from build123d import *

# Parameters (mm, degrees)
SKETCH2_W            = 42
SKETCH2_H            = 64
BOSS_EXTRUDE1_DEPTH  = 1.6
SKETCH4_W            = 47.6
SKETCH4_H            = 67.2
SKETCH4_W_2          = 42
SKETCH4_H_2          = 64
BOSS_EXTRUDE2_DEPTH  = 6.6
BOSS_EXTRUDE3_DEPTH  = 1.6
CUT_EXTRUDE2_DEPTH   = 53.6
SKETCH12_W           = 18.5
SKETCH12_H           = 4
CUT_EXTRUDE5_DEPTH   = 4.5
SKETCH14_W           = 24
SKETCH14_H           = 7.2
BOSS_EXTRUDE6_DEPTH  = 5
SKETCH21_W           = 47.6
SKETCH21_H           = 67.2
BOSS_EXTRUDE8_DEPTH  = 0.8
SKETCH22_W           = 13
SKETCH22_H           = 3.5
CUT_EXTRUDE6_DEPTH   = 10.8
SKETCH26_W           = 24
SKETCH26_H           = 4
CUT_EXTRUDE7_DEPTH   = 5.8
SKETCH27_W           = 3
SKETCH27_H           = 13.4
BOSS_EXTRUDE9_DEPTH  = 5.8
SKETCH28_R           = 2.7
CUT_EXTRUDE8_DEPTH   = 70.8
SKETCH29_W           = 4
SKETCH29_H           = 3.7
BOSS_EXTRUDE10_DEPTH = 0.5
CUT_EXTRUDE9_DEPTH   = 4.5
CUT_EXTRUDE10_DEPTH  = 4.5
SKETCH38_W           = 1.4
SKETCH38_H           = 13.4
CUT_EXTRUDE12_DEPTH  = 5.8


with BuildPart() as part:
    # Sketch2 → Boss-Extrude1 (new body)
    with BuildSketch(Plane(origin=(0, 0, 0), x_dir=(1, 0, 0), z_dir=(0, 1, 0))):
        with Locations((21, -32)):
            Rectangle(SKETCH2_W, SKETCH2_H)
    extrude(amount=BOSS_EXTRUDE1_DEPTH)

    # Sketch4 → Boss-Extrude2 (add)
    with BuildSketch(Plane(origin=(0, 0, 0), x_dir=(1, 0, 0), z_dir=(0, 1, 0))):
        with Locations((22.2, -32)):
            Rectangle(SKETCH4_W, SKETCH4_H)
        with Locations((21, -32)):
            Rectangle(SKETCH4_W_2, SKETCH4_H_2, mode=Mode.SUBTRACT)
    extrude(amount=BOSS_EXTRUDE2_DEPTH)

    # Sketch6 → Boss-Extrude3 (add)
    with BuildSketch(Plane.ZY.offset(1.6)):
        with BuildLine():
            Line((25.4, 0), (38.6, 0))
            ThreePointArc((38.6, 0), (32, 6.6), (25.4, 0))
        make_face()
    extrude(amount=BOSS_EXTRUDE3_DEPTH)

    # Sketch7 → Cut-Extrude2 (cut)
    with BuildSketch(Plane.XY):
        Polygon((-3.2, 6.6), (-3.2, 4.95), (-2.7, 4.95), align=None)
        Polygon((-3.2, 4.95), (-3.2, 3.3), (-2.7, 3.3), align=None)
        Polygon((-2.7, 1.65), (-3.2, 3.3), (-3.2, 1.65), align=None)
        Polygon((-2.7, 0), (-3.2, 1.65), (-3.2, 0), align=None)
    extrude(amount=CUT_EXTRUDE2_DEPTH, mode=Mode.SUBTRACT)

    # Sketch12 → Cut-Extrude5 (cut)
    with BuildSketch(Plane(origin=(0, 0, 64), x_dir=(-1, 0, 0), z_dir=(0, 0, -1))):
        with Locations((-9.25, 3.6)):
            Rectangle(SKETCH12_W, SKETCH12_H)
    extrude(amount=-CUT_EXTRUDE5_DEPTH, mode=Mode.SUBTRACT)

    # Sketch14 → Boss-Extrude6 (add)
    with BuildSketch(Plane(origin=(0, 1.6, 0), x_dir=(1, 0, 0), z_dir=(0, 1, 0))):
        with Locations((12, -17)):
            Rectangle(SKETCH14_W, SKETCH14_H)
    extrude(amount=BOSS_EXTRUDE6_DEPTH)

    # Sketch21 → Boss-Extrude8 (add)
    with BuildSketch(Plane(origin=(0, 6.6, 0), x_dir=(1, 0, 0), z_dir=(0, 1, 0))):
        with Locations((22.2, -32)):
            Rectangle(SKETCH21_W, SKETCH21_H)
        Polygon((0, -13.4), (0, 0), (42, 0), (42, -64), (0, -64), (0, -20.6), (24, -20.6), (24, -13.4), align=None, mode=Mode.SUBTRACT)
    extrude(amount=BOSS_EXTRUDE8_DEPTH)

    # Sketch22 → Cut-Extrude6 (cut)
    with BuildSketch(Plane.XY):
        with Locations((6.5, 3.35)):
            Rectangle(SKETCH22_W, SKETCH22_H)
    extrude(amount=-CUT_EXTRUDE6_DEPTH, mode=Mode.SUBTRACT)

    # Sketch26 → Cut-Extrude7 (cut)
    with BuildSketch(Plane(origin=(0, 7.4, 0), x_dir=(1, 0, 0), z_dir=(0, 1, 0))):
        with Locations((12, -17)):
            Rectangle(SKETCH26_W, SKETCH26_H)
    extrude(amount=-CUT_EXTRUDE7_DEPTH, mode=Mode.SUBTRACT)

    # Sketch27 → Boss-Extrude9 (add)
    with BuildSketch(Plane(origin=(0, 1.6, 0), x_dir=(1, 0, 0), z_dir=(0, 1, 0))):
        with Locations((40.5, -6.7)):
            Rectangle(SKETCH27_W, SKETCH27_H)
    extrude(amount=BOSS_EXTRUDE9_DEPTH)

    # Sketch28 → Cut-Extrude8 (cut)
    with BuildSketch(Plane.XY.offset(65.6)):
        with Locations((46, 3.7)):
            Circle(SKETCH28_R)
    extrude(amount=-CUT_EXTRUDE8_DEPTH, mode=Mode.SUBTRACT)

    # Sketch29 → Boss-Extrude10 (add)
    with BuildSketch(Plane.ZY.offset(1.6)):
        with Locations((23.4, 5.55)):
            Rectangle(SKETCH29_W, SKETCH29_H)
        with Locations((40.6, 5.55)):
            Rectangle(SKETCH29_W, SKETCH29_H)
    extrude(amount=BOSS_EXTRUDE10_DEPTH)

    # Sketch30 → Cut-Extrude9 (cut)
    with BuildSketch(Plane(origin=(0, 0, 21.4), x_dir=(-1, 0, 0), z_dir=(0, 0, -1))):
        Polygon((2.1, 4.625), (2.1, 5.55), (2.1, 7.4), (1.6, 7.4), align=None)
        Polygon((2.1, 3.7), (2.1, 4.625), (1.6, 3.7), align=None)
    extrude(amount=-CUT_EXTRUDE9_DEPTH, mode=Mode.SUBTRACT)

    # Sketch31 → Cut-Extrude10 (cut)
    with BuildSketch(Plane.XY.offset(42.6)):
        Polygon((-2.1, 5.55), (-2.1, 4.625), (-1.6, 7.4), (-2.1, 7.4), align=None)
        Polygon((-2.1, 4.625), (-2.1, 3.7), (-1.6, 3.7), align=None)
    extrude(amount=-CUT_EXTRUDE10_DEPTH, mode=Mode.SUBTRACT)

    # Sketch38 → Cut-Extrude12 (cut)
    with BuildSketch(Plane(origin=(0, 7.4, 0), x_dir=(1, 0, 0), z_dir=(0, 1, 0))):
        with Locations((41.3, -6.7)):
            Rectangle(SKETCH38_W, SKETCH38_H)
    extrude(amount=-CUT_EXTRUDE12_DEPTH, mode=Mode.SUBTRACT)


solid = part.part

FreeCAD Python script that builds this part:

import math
import FreeCAD as App
import Part
import Sketcher

V = App.Vector
Q = App.Units.Quantity


def add_polygon(sketch, points):
    """Adds a closed chain of lines whose ends are joined by coincident constraints."""
    first, n = sketch.GeometryCount, len(points)
    for a, b in zip(points, points[1:] + points[:1]):
        sketch.addGeometry(Part.LineSegment(App.Vector(*a, 0), App.Vector(*b, 0)), False)
    for i in range(n):
        sketch.addConstraint(Sketcher.Constraint("Coincident", first + i, 2, first + (i + 1) % n, 1))

doc = App.newDocument("Part")
body = doc.addObject("PartDesign::Body", "Body")

# Sketch on XZ plane
sketch1 = body.newObject("Sketcher::SketchObject", "Sketch")
sketch1.AttachmentSupport = (doc.getObject("XZ_Plane"), [""])
sketch1.MapMode = "FlatFace"
add_polygon(sketch1, [(0, 0), (0, 64), (42, 64), (42, 0)])  # lines 0-3
sketch1.addConstraint([
    Sketcher.Constraint("Vertical", 0),
    Sketcher.Constraint("Horizontal", 1),
    Sketcher.Constraint("Vertical", 2),
    Sketcher.Constraint("Horizontal", 3),
    Sketcher.Constraint("Coincident", 3, 2, -1, 1),
    Sketcher.Constraint("DistanceX", 1, 1, 1, 2, Q("42 mm")),
    Sketcher.Constraint("DistanceY", 0, 1, 0, 2, Q("64 mm")),
])
pad1 = body.newObject("PartDesign::Pad", "Pad")
pad1.Profile = sketch1
pad1.Length = 1.6
pad1.Reversed = True

# Sketch on XZ plane
sketch2 = body.newObject("Sketcher::SketchObject", "Sketch001")
sketch2.AttachmentSupport = (doc.getObject("XZ_Plane"), [""])
sketch2.MapMode = "FlatFace"
add_polygon(sketch2, [(-2, -2), (-2, 66), (46, 66), (46, -2)])  # lines 0-3
add_polygon(sketch2, [(42, 64), (0, 64), (0, 0), (42, 0)])  # lines 4-7
sketch2.addConstraint([
    Sketcher.Constraint("Vertical", 0),
    Sketcher.Constraint("Horizontal", 1),
    Sketcher.Constraint("Vertical", 2),
    Sketcher.Constraint("Horizontal", 3),
    Sketcher.Constraint("Horizontal", 4),
    Sketcher.Constraint("Vertical", 5),
    Sketcher.Constraint("Horizontal", 6),
    Sketcher.Constraint("Vertical", 7),
    Sketcher.Constraint("Coincident", 5, 2, -1, 1),
    Sketcher.Constraint("DistanceX", 4, 2, 4, 1, Q("42 mm")),
    Sketcher.Constraint("DistanceY", 5, 2, 5, 1, Q("64 mm")),
    Sketcher.Constraint("DistanceX", 1, 1, 1, 2, Q("47.6 mm")),
    Sketcher.Constraint("DistanceY", 0, 1, 0, 2, Q("67.2 mm")),
    Sketcher.Constraint("DistanceX", -1, 1, 1, 2, Q("46 mm")),
    Sketcher.Constraint("DistanceY", -1, 1, 0, 2, Q("65.6 mm")),
])
pad2 = body.newObject("PartDesign::Pad", "Pad001")
pad2.Profile = sketch2
pad2.Length = 6.6
pad2.Reversed = True

# Sketch on YZ plane
sketch3 = body.newObject("Sketcher::SketchObject", "Sketch002")
sketch3.AttachmentSupport = (doc.getObject("YZ_Plane"), [""])
sketch3.MapMode = "FlatFace"
sketch3.AttachmentOffset = App.Placement(V(0, 0, -1.6), App.Rotation())
sketch3.addGeometry([
    Part.LineSegment(V(0, 25, 0), V(0, 39, 0)),
    Part.ArcOfCircle(Part.Circle(V(0, 32, 0), V(0, 0, 1), 7), math.radians(-90), math.radians(90)),
], False)
sketch3.addConstraint([
    Sketcher.Constraint("Coincident", 0, 1, 1, 1),
    Sketcher.Constraint("Coincident", 1, 2, 0, 2),
    Sketcher.Constraint("Vertical", 0),
    Sketcher.Constraint("PointOnObject", 1, 3, -2),
    Sketcher.Constraint("PointOnObject", 0, 1, -2),
    Sketcher.Constraint("Radius", 1, Q("6.6 mm")),
    Sketcher.Constraint("DistanceY", -1, 1, 1, 3, Q("32 mm")),
])
pad3 = body.newObject("PartDesign::Pad", "Pad002")
pad3.Profile = sketch3
pad3.Length = 1.6
pad3.Reversed = True

# Sketch on XY plane
sketch4 = body.newObject("Sketcher::SketchObject", "Sketch003")
sketch4.AttachmentSupport = (doc.getObject("XY_Plane"), [""])
sketch4.MapMode = "FlatFace"
add_polygon(sketch4, [(-3.2, 6.6), (-3.2, 5), (-2.7, 5)])  # lines 0-2
add_polygon(sketch4, [(-3.2, 5), (-3.2, 3.3), (-2.7, 3.3)])  # lines 3-5
add_polygon(sketch4, [(-2.7, 1.6), (-3.2, 3.3), (-3.2, 1.6)])  # lines 6-8
add_polygon(sketch4, [(-2.7, 0), (-3.2, 1.6), (-3.2, 0)])  # lines 9-11
sketch4.addConstraint([
    Sketcher.Constraint("Vertical", 0),
    Sketcher.Constraint("Horizontal", 1),
    Sketcher.Constraint("Vertical", 3),
    Sketcher.Constraint("Horizontal", 4),
    Sketcher.Constraint("Vertical", 7),
    Sketcher.Constraint("Horizontal", 8),
    Sketcher.Constraint("Vertical", 10),
    Sketcher.Constraint("Horizontal", 11),
    Sketcher.Constraint("Coincident", 5, 2, 0, 2),
    Sketcher.Constraint("Coincident", 6, 2, 3, 2),
    Sketcher.Constraint("Coincident", 9, 2, 7, 2),
    Sketcher.Constraint("PointOnObject", 10, 2, -1),
    Sketcher.Constraint("Parallel", 2, 5),
    Sketcher.Constraint("Parallel", 5, 6),
    Sketcher.Constraint("Parallel", 6, 9),
    Sketcher.Constraint("Vertical", 1, 2, 4, 2),
    Sketcher.Constraint("Vertical", 4, 2, 8, 2),
    Sketcher.Constraint("Vertical", 8, 2, 11, 2),
    Sketcher.Constraint("DistanceX", 1, 1, 1, 2, Q("0.5 mm")),
    Sketcher.Constraint("DistanceY", 0, 2, 0, 1, Q("1.65 mm")),
    Sketcher.Constraint("DistanceX", 0, 2, -1, 1, Q("3.2 mm")),
])
pocket1 = body.newObject("PartDesign::Pocket", "Pocket")
pocket1.Profile = sketch4
pocket1.Length = 53.6
pocket1.Reversed = True

# Sketch on XY plane
sketch5 = body.newObject("Sketcher::SketchObject", "Sketch004")
sketch5.AttachmentSupport = (doc.getObject("XY_Plane"), [""])
sketch5.MapMode = "FlatFace"
sketch5.AttachmentOffset = App.Placement(V(0, 0, 64), App.Rotation())
add_polygon(sketch5, [(18.5, 5.6), (18.5, 1.6), (0, 1.6), (0, 5.6)])  # lines 0-3
sketch5.addConstraint([
    Sketcher.Constraint("Vertical", 0),
    Sketcher.Constraint("Horizontal", 1),
    Sketcher.Constraint("Vertical", 2),
    Sketcher.Constraint("Horizontal", 3),
    Sketcher.Constraint("PointOnObject", 1, 2, -2),
    Sketcher.Constraint("DistanceY", 0, 2, 0, 1, Q("4 mm")),
    Sketcher.Constraint("DistanceX", 1, 2, 1, 1, Q("18.5 mm")),
    Sketcher.Constraint("DistanceY", -1, 1, 0, 2, Q("1.6 mm")),
])
pocket2 = body.newObject("PartDesign::Pocket", "Pocket001")
pocket2.Profile = sketch5
pocket2.Length = 4.5
pocket2.Reversed = True

# Sketch on XZ plane
sketch6 = body.newObject("Sketcher::SketchObject", "Sketch005")
sketch6.AttachmentSupport = (doc.getObject("XZ_Plane"), [""])
sketch6.MapMode = "FlatFace"
sketch6.AttachmentOffset = App.Placement(V(0, 0, -1.6), App.Rotation())
add_polygon(sketch6, [(0, 13), (0, 21), (24, 21), (24, 13)])  # lines 0-3
sketch6.addConstraint([
    Sketcher.Constraint("Vertical", 0),
    Sketcher.Constraint("Horizontal", 1),
    Sketcher.Constraint("Vertical", 2),
    Sketcher.Constraint("Horizontal", 3),
    Sketcher.Constraint("PointOnObject", 0, 2, -2),
    Sketcher.Constraint("DistanceX", 1, 1, 1, 2, Q("24 mm")),
    Sketcher.Constraint("DistanceY", 0, 1, 0, 2, Q("7.2 mm")),
    Sketcher.Constraint("DistanceY", -1, 1, 0, 2, Q("20.6 mm")),
])
pad4 = body.newObject("PartDesign::Pad", "Pad003")
pad4.Profile = sketch6
pad4.Length = 5
pad4.Reversed = True

# Sketch on XZ plane
sketch7 = body.newObject("Sketcher::SketchObject", "Sketch006")
sketch7.AttachmentSupport = (doc.getObject("XZ_Plane"), [""])
sketch7.MapMode = "FlatFace"
sketch7.AttachmentOffset = App.Placement(V(0, 0, -6.6), App.Rotation())
add_polygon(sketch7, [(-2, -2), (-2, 66), (46, 66), (46, -2)])  # lines 0-3
add_polygon(sketch7, [(24, 13), (0, 13), (0, 0), (42, 0), (42, 64), (0, 64), (0, 21), (24, 21)])  # lines 4-11
sketch7.addConstraint([
    Sketcher.Constraint("Vertical", 0),
    Sketcher.Constraint("Horizontal", 1),
    Sketcher.Constraint("Vertical", 2),
    Sketcher.Constraint("Horizontal", 3),
    Sketcher.Constraint("Horizontal", 4),
    Sketcher.Constraint("Vertical", 5),
    Sketcher.Constraint("Horizontal", 6),
    Sketcher.Constraint("Vertical", 7),
    Sketcher.Constraint("Horizontal", 8),
    Sketcher.Constraint("Vertical", 9),
    Sketcher.Constraint("Horizontal", 10),
    Sketcher.Constraint("Vertical", 11),
    Sketcher.Constraint("Coincident", 5, 2, -1, 1),
    Sketcher.Constraint("PointOnObject", 8, 2, -2),
    Sketcher.Constraint("DistanceX", 4, 2, 4, 1, Q("24 mm")),
    Sketcher.Constraint("DistanceX", 6, 1, 6, 2, Q("42 mm")),
    Sketcher.Constraint("DistanceY", 7, 1, 7, 2, Q("64 mm")),
    Sketcher.Constraint("DistanceX", 1, 1, 1, 2, Q("47.6 mm")),
    Sketcher.Constraint("DistanceY", 0, 1, 0, 2, Q("67.2 mm")),
    Sketcher.Constraint("DistanceY", 5, 2, 5, 1, Q("13.4 mm")),
    Sketcher.Constraint("DistanceY", 9, 2, 9, 1, Q("43.4 mm")),
    Sketcher.Constraint("DistanceX", -1, 1, 1, 2, Q("46 mm")),
    Sketcher.Constraint("DistanceY", 3, 2, 4, 2, Q("15 mm")),
])
pad5 = body.newObject("PartDesign::Pad", "Pad004")
pad5.Profile = sketch7
pad5.Length = 0.8
pad5.Reversed = True

# Sketch on XY plane
sketch8 = body.newObject("Sketcher::SketchObject", "Sketch007")
sketch8.AttachmentSupport = (doc.getObject("XY_Plane"), [""])
sketch8.MapMode = "FlatFace"
add_polygon(sketch8, [(0, 5.1), (0, 1.6), (13, 1.6), (13, 5.1)])  # lines 0-3
sketch8.addConstraint([
    Sketcher.Constraint("Vertical", 0),
    Sketcher.Constraint("Horizontal", 1),
    Sketcher.Constraint("Vertical", 2),
    Sketcher.Constraint("Horizontal", 3),
    Sketcher.Constraint("PointOnObject", 0, 2, -2),
    Sketcher.Constraint("DistanceX", 1, 1, 1, 2, Q("13 mm")),
    Sketcher.Constraint("DistanceY", 0, 2, 0, 1, Q("3.5 mm")),
    Sketcher.Constraint("DistanceY", -1, 1, 0, 2, Q("1.6 mm")),
])
pocket3 = body.newObject("PartDesign::Pocket", "Pocket002")
pocket3.Profile = sketch8
pocket3.Length = 10.8

# Sketch on XZ plane
sketch9 = body.newObject("Sketcher::SketchObject", "Sketch008")
sketch9.AttachmentSupport = (doc.getObject("XZ_Plane"), [""])
sketch9.MapMode = "FlatFace"
sketch9.AttachmentOffset = App.Placement(V(0, 0, -7.4), App.Rotation())
add_polygon(sketch9, [(0, 15), (0, 19), (24, 19), (24, 15)])  # lines 0-3
sketch9.addConstraint([
    Sketcher.Constraint("Vertical", 0),
    Sketcher.Constraint("Horizontal", 1),
    Sketcher.Constraint("Vertical", 2),
    Sketcher.Constraint("Horizontal", 3),
    Sketcher.Constraint("PointOnObject", 0, 2, -2),
    Sketcher.Constraint("DistanceX", 1, 1, 1, 2, Q("24 mm")),
    Sketcher.Constraint("DistanceY", 0, 1, 0, 2, Q("4 mm")),
    Sketcher.Constraint("DistanceY", -1, 1, 0, 2, Q("19 mm")),
])
pocket4 = body.newObject("PartDesign::Pocket", "Pocket003")
pocket4.Profile = sketch9
pocket4.Length = 5.8
pocket4.Reversed = True

# Sketch on XZ plane
sketch10 = body.newObject("Sketcher::SketchObject", "Sketch009")
sketch10.AttachmentSupport = (doc.getObject("XZ_Plane"), [""])
sketch10.MapMode = "FlatFace"
sketch10.AttachmentOffset = App.Placement(V(0, 0, -1.6), App.Rotation())
add_polygon(sketch10, [(39, 0), (39, 13.4), (42, 13.4), (42, 0)])  # lines 0-3
sketch10.addConstraint([
    Sketcher.Constraint("Vertical", 0),
    Sketcher.Constraint("Horizontal", 1),
    Sketcher.Constraint("Vertical", 2),
    Sketcher.Constraint("Horizontal", 3),
    Sketcher.Constraint("PointOnObject", 2, 2, -1),
    Sketcher.Constraint("DistanceX", 1, 1, 1, 2, Q("3 mm")),
    Sketcher.Constraint("DistanceY", 0, 1, 0, 2, Q("13.4 mm")),
    Sketcher.Constraint("DistanceX", -1, 1, 0, 2, Q("39 mm")),
])
pad6 = body.newObject("PartDesign::Pad", "Pad005")
pad6.Profile = sketch10
pad6.Length = 5.8
pad6.Reversed = True

# Sketch on XY plane
sketch11 = body.newObject("Sketcher::SketchObject", "Sketch010")
sketch11.AttachmentSupport = (doc.getObject("XY_Plane"), [""])
sketch11.MapMode = "FlatFace"
sketch11.AttachmentOffset = App.Placement(V(0, 0, 65.6), App.Rotation())
sketch11.addGeometry(Part.Circle(V(46, 3.7, 0), V(0, 0, 1), 2.7), False)
sketch11.addConstraint([
    Sketcher.Constraint("Diameter", 0, Q("5.4 mm")),
    Sketcher.Constraint("DistanceX", -1, 1, 0, 3, Q("46 mm")),
    Sketcher.Constraint("DistanceY", -1, 1, 0, 3, Q("3.7 mm")),
])
pocket5 = body.newObject("PartDesign::Pocket", "Pocket004")
pocket5.Profile = sketch11
pocket5.Length = 70.8

# Sketch on YZ plane
sketch12 = body.newObject("Sketcher::SketchObject", "Sketch011")
sketch12.AttachmentSupport = (doc.getObject("YZ_Plane"), [""])
sketch12.MapMode = "FlatFace"
sketch12.AttachmentOffset = App.Placement(V(0, 0, -1.6), App.Rotation())
add_polygon(sketch12, [(7.4, 21.4), (3.7, 21.4), (3.7, 25.4), (7.4, 25.4)])  # lines 0-3
add_polygon(sketch12, [(7.4, 38.6), (3.7, 38.6), (3.7, 42.6), (7.4, 42.6)])  # lines 4-7
sketch12.addConstraint([
    Sketcher.Constraint("Horizontal", 0),
    Sketcher.Constraint("Vertical", 1),
    Sketcher.Constraint("Horizontal", 2),
    Sketcher.Constraint("Vertical", 3),
    Sketcher.Constraint("Horizontal", 4),
    Sketcher.Constraint("Vertical", 5),
    Sketcher.Constraint("Horizontal", 6),
    Sketcher.Constraint("Vertical", 7),
    Sketcher.Constraint("Vertical", 1, 2, 4, 2),
    Sketcher.Constraint("Vertical", 3, 2, 6, 2),
    Sketcher.Constraint("Equal", 3, 5),
    Sketcher.Constraint("DistanceY", 1, 1, 1, 2, Q("4 mm")),
    Sketcher.Constraint("DistanceX", 0, 2, 0, 1, Q("3.7 mm")),
    Sketcher.Constraint("DistanceX", -1, 1, 0, 2, Q("3.7 mm")),
    Sketcher.Constraint("DistanceY", -1, 1, 0, 2, Q("21.4 mm")),
    Sketcher.Constraint("DistanceY", -1, 1, 4, 2, Q("38.6 mm")),
])
pad7 = body.newObject("PartDesign::Pad", "Pad006")
pad7.Profile = sketch12
pad7.Length = 0.5
pad7.Reversed = True

# Sketch on XY plane
sketch13 = body.newObject("Sketcher::SketchObject", "Sketch012")
sketch13.AttachmentSupport = (doc.getObject("XY_Plane"), [""])
sketch13.MapMode = "FlatFace"
sketch13.AttachmentOffset = App.Placement(V(0, 0, 21.4), App.Rotation())
add_polygon(sketch13, [(-2.1, 4.6), (-2.1, 7.4), (-1.6, 7.4)])  # lines 0-2
add_polygon(sketch13, [(-2.1, 3.7), (-2.1, 4.6), (-1.6, 3.7)])  # lines 3-5
sketch13.addConstraint([
    Sketcher.Constraint("Vertical", 0),
    Sketcher.Constraint("Horizontal", 1),
    Sketcher.Constraint("Vertical", 3),
    Sketcher.Constraint("Horizontal", 5),
    Sketcher.Constraint("Coincident", 3, 2, 2, 2),
    Sketcher.Constraint("Vertical", 1, 2, 4, 2),
    Sketcher.Constraint("DistanceX", 1, 1, 1, 2, Q("0.5 mm")),
    Sketcher.Constraint("DistanceX", 0, 2, -1, 1, Q("2.1 mm")),
    Sketcher.Constraint("DistanceY", -1, 1, 0, 2, Q("7.4 mm")),
    Sketcher.Constraint("DistanceY", -1, 1, 4, 2, Q("3.7 mm")),
    Sketcher.Constraint("DistanceY", 0, 1, 0, 2, Q("2.775 mm")),
])
pocket6 = body.newObject("PartDesign::Pocket", "Pocket005")
pocket6.Profile = sketch13
pocket6.Length = 4.5
pocket6.Reversed = True

# Sketch on XY plane
sketch14 = body.newObject("Sketcher::SketchObject", "Sketch013")
sketch14.AttachmentSupport = (doc.getObject("XY_Plane"), [""])
sketch14.MapMode = "FlatFace"
sketch14.AttachmentOffset = App.Placement(V(0, 0, 42.6), App.Rotation())
add_polygon(sketch14, [(-2.1, 4.6), (-1.6, 7.4), (-2.1, 7.4)])  # lines 0-2
add_polygon(sketch14, [(-2.1, 4.6), (-2.1, 3.7), (-1.6, 3.7)])  # lines 3-5
sketch14.addConstraint([
    Sketcher.Constraint("Horizontal", 1),
    Sketcher.Constraint("Vertical", 2),
    Sketcher.Constraint("Vertical", 3),
    Sketcher.Constraint("Horizontal", 4),
    Sketcher.Constraint("Coincident", 5, 2, 2, 2),
    Sketcher.Constraint("Vertical", 0, 2, 4, 2),
    Sketcher.Constraint("DistanceX", 1, 2, 1, 1, Q("0.5 mm")),
    Sketcher.Constraint("DistanceX", 0, 2, -1, 1, Q("1.6 mm")),
    Sketcher.Constraint("DistanceY", -1, 1, 0, 2, Q("7.4 mm")),
    Sketcher.Constraint("DistanceY", -1, 1, 3, 2, Q("3.7 mm")),
    Sketcher.Constraint("DistanceY", 2, 2, 2, 1, Q("2.775 mm")),
])
pocket7 = body.newObject("PartDesign::Pocket", "Pocket006")
pocket7.Profile = sketch14
pocket7.Length = 4.5

# Sketch on XZ plane
sketch15 = body.newObject("Sketcher::SketchObject", "Sketch014")
sketch15.AttachmentSupport = (doc.getObject("XZ_Plane"), [""])
sketch15.MapMode = "FlatFace"
sketch15.AttachmentOffset = App.Placement(V(0, 0, -7.4), App.Rotation())
add_polygon(sketch15, [(40.6, 0), (40.6, 13.4), (42, 13.4), (42, 0)])  # lines 0-3
sketch15.addConstraint([
    Sketcher.Constraint("Vertical", 0),
    Sketcher.Constraint("Horizontal", 1),
    Sketcher.Constraint("Vertical", 2),
    Sketcher.Constraint("Horizontal", 3),
    Sketcher.Constraint("PointOnObject", 2, 2, -1),
    Sketcher.Constraint("DistanceX", 1, 1, 1, 2, Q("1.4 mm")),
    Sketcher.Constraint("DistanceY", 0, 1, 0, 2, Q("13.4 mm")),
    Sketcher.Constraint("DistanceX", -1, 1, 1, 2, Q("42 mm")),
])
pocket8 = body.newObject("PartDesign::Pocket", "Pocket007")
pocket8.Profile = sketch15
pocket8.Length = 5.8
pocket8.Reversed = True

doc.recompute()
